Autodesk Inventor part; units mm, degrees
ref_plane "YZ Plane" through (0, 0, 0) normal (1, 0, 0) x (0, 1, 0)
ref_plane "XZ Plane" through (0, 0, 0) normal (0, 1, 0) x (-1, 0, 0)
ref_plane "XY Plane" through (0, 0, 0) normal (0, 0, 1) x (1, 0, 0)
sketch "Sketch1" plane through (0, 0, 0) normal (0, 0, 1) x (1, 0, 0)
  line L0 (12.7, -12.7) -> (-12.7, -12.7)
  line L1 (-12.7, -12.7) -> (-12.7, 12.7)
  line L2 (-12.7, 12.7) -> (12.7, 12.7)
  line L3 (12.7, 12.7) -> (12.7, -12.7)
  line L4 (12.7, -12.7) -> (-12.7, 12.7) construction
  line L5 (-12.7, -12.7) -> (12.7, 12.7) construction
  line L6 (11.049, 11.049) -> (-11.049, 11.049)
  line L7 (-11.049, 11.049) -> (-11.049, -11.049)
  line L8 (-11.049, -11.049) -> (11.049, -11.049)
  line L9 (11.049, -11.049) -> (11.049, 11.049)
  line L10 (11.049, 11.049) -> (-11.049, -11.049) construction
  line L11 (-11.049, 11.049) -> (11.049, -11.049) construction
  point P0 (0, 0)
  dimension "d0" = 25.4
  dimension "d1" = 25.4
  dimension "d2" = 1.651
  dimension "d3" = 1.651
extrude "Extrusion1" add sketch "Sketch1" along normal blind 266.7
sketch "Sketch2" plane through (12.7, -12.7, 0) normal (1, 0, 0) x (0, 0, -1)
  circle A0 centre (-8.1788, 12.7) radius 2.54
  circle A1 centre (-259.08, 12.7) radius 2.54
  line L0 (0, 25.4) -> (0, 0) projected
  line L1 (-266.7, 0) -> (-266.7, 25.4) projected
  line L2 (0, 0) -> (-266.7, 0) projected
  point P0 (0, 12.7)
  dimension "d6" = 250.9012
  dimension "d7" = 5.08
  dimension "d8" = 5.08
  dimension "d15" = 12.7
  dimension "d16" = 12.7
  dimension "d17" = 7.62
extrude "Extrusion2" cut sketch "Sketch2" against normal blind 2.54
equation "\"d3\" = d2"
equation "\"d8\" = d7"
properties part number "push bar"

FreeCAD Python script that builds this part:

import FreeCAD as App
import Part
import Sketcher
Q = App.Units.Quantity


def add_polygon(sketch, points):
    """Adds a closed chain of lines whose ends are joined by coincident constraints."""
    first, n = sketch.GeometryCount, len(points)
    for a, b in zip(points, points[1:] + points[:1]):
        sketch.addGeometry(Part.LineSegment(App.Vector(*a, 0), App.Vector(*b, 0)), False)
    for i in range(n):
        sketch.addConstraint(Sketcher.Constraint("Coincident", first + i, 2, first + (i + 1) % n, 1))

doc = App.newDocument("Part")
body = doc.addObject("PartDesign::Body", "Body")

sketch1 = doc.addObject("Sketcher::SketchObject", "Sketch")
body.addObject(sketch1)
sketch1.AttachmentSupport = (doc.XY_Plane, [""])
sketch1.MapMode = "FlatFace"
add_polygon(sketch1, [(-13, -13), (13, -13), (13, 13), (-13, 13)])
add_polygon(sketch1, [(-11, 11), (11, 11), (11, -11), (-11, -11)])
sketch1.addConstraint([
    Sketcher.Constraint("Horizontal", 0),
    Sketcher.Constraint("Vertical", 1),
    Sketcher.Constraint("Horizontal", 2),
    Sketcher.Constraint("Vertical", 3),
    Sketcher.Constraint("Horizontal", 4),
    Sketcher.Constraint("Vertical", 5),
    Sketcher.Constraint("Horizontal", 6),
    Sketcher.Constraint("Vertical", 7),
    Sketcher.Constraint("Symmetric", 0, 2, 2, 2, -1, 1),
    Sketcher.Constraint("Symmetric", 4, 2, 6, 2, -1, 1),
    Sketcher.Constraint("Equal", 2, 1),
    Sketcher.Constraint("Equal", 6, 5),
    Sketcher.Constraint("DistanceX", 0, 1, 0, 2, Q("1 in")),
    Sketcher.Constraint("DistanceX", 4, 2, 1, 2, Q("0.065 in")),
])
pad1 = doc.addObject("PartDesign::Pad", "Pad")
body.addObject(pad1)
pad1.Profile = sketch1
pad1.Length = Q("10.5 in")

sketch2 = doc.addObject("Sketcher::SketchObject", "Sketch001")
body.addObject(sketch2)
sketch2.AttachmentSupport = (doc.YZ_Plane, [""])
sketch2.MapMode = "FlatFace"
sketch2.AttachmentOffset = App.Placement(App.Vector(0, 0, 0.5 * 25.4), App.Rotation())
sketch2.addGeometry([
    Part.Circle(App.Vector(0, 8.2, 0), App.Vector(0, 0, 1), 2.5),
    Part.Circle(App.Vector(0, 259.1, 0), App.Vector(0, 0, 1), 2.5),
], False)
sketch2.addConstraint([
    Sketcher.Constraint("Equal", 0, 1),
    Sketcher.Constraint("PointOnObject", 0, 3, -2),
    Sketcher.Constraint("PointOnObject", 1, 3, -2),
    Sketcher.Constraint("Diameter", 0, Q("0.2 in")),
    Sketcher.Constraint("DistanceY", 0, 3, 1, 3, Q("9.878 in")),
    Sketcher.Constraint("DistanceY", -1, 1, 1, 3, Q("10.2 in")),
])
pocket1 = doc.addObject("PartDesign::Pocket", "Pocket")
body.addObject(pocket1)
pocket1.Profile = sketch2
pocket1.Length = Q("0.1 in")

doc.recompute()
